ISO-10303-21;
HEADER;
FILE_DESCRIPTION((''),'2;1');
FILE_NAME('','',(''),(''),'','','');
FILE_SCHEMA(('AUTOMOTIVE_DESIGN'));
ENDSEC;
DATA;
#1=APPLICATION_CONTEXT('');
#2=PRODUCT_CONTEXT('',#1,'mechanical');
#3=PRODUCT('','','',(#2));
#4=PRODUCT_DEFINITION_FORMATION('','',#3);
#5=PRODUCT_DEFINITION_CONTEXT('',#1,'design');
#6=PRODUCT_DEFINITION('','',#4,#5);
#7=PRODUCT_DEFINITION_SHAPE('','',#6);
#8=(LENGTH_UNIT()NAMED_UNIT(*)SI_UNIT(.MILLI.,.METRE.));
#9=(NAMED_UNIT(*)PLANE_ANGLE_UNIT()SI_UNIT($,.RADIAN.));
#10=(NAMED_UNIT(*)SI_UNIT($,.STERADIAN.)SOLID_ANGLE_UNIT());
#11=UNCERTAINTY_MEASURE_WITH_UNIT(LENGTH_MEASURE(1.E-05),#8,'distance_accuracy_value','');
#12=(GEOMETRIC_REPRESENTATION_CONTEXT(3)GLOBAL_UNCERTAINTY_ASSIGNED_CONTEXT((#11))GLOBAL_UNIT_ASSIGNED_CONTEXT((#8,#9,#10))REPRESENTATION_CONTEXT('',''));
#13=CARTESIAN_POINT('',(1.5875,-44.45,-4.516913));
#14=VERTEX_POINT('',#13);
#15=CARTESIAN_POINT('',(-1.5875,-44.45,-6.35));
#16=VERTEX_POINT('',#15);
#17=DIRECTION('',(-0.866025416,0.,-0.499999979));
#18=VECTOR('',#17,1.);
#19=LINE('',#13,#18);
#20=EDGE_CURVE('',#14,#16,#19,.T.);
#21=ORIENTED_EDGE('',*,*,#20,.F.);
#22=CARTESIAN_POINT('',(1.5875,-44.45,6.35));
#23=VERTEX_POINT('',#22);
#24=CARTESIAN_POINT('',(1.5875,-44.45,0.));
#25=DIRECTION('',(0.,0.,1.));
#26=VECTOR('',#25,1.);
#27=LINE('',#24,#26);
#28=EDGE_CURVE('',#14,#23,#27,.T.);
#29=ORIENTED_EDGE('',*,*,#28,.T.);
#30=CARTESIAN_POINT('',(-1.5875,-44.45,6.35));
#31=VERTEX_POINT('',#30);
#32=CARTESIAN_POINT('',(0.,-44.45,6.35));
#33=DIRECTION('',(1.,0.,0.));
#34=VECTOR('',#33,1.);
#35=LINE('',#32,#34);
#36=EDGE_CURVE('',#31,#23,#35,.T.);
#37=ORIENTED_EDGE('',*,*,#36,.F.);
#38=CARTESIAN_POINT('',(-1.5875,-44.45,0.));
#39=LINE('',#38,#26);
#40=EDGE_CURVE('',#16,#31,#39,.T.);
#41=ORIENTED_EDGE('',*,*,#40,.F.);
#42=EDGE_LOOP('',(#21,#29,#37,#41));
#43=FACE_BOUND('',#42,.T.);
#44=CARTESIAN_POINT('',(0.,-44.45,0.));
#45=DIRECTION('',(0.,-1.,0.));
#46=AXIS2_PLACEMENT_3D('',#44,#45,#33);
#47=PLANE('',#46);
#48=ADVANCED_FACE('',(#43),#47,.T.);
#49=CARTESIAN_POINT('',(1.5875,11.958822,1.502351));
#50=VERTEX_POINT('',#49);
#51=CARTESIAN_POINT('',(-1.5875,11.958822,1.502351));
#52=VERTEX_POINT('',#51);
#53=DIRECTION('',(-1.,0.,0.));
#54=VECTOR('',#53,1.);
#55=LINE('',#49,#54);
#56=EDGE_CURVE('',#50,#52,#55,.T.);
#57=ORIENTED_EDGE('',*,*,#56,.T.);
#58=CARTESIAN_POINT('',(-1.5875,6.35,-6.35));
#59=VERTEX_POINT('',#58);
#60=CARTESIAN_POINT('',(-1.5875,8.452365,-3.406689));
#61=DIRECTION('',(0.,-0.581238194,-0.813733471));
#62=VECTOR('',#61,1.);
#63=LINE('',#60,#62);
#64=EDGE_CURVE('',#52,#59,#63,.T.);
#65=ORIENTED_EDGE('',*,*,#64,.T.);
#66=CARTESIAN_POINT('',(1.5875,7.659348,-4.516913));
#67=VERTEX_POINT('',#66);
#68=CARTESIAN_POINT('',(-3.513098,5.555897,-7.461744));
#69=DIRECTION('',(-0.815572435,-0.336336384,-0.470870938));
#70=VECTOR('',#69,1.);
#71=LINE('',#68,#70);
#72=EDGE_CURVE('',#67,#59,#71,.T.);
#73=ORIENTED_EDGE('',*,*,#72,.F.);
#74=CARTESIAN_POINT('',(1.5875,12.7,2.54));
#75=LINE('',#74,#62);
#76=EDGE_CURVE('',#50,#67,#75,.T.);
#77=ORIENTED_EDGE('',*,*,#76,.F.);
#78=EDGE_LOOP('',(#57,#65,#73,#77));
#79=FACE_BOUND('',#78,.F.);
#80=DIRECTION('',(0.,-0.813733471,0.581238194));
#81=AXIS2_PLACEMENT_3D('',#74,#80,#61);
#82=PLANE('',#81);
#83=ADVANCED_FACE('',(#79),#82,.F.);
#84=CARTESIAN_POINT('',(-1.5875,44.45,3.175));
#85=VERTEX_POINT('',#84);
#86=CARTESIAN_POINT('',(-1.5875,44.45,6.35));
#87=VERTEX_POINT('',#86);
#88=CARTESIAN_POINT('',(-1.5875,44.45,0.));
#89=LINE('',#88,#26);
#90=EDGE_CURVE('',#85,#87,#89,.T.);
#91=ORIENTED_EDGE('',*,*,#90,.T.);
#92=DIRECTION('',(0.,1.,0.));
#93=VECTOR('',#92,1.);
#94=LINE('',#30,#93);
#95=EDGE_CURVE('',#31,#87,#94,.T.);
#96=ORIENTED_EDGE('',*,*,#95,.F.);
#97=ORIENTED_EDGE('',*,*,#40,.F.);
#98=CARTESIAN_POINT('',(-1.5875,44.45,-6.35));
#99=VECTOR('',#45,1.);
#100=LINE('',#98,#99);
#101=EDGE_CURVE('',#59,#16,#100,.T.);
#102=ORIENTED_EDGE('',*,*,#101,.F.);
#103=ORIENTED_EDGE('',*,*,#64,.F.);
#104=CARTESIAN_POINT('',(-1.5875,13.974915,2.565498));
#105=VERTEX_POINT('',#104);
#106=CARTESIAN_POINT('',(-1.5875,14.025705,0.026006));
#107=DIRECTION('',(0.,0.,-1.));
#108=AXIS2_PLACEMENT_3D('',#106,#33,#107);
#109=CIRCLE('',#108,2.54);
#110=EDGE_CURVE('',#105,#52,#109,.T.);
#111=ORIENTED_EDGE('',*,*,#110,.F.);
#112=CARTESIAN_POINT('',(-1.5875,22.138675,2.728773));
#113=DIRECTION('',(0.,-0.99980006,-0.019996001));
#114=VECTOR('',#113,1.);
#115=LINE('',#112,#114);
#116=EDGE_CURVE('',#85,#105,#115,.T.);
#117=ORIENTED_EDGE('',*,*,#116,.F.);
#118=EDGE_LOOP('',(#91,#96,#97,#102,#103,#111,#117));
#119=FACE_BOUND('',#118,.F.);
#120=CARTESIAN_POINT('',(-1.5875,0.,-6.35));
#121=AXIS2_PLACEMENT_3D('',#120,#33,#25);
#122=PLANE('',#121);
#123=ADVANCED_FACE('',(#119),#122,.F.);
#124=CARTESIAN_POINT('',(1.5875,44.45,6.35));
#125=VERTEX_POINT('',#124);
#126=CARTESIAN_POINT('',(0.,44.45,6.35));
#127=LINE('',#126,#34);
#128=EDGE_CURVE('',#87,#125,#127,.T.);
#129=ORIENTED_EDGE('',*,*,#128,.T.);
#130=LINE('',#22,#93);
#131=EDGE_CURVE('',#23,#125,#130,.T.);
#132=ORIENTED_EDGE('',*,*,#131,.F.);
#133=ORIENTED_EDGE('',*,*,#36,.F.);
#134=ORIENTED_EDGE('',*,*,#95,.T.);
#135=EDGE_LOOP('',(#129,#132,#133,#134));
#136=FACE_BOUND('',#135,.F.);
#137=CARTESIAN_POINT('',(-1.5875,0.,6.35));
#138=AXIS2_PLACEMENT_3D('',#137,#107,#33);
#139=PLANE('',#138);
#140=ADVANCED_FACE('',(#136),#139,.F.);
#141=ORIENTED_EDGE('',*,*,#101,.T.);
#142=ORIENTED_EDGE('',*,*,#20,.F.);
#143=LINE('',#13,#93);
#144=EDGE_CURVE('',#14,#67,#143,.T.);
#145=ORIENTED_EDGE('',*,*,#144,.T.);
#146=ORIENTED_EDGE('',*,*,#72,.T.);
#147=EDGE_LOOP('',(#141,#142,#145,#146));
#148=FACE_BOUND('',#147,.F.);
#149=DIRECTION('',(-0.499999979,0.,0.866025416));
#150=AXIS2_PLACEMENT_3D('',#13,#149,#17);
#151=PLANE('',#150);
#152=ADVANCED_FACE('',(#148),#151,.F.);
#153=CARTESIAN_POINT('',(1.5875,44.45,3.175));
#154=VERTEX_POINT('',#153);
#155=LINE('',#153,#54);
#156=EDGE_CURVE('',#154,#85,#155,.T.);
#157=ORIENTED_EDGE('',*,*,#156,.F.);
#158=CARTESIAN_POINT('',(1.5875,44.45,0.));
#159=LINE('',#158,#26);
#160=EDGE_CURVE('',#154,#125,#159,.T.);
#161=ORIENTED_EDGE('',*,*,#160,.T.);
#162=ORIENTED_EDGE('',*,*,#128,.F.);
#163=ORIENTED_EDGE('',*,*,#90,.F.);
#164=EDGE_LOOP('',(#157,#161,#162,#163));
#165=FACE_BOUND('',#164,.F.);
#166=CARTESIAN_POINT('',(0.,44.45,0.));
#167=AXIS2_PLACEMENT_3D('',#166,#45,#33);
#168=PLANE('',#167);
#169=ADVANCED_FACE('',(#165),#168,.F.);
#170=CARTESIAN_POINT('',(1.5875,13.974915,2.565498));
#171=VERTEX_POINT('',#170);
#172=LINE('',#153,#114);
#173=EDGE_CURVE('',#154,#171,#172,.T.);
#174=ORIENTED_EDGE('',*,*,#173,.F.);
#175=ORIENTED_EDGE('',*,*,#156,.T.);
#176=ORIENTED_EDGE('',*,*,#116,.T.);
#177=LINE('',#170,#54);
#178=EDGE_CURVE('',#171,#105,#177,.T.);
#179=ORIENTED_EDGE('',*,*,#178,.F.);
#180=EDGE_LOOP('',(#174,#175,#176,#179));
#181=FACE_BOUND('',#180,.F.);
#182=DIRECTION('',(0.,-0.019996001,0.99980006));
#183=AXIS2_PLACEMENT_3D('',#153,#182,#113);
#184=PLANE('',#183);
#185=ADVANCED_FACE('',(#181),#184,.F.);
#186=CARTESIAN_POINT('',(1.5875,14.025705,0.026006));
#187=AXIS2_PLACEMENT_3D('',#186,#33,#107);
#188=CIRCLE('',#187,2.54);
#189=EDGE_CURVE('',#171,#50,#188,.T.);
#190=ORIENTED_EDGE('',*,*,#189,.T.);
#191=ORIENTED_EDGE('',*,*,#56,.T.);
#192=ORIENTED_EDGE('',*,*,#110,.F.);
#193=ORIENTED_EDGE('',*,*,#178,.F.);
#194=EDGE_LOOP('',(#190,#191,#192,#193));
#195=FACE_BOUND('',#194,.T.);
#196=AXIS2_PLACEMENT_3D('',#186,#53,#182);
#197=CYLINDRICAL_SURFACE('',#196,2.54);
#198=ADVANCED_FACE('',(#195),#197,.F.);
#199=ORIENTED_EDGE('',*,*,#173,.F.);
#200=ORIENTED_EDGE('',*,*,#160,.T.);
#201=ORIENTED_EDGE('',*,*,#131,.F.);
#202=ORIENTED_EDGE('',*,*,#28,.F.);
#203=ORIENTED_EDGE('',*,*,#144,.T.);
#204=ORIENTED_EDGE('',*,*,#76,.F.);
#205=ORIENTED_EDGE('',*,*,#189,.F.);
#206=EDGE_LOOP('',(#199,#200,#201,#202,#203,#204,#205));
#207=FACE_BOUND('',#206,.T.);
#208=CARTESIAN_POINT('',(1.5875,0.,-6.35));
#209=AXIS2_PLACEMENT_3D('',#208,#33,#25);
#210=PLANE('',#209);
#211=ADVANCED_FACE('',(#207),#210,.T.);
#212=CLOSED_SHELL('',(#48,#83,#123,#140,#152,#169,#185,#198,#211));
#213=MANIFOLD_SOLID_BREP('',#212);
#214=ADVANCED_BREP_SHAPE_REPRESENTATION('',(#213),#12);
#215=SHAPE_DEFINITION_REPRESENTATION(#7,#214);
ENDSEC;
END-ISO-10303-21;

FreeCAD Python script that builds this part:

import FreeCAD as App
import Part
import Sketcher

V = App.Vector
Q = App.Units.Quantity


def edges_at(feature, points):
    """Names of the edges that pass closest to the given points."""
    edges = feature.Shape.Edges
    near = lambda p: min(range(len(edges)), key=lambda i: edges[i].distToShape(Part.Vertex(*p))[0])
    return sorted({f"Edge{near(p) + 1}" for p in points})

doc = App.newDocument("Part")
body = doc.addObject("PartDesign::Body", "Body")

# Sketch on XZ plane
sketch1 = doc.addObject("Sketcher::SketchObject", "Sketch")
body.addObject(sketch1)
sketch1.AttachmentSupport = (doc.XZ_Plane, [""])
sketch1.MapMode = "FlatFace"
sketch1.addGeometry(Part.LineSegment(V(-1.6, 6.3, 0), V(-1.6, -6.3, 0)), False)
sketch1.addGeometry(Part.LineSegment(V(-1.6, -6.3, 0), V(1.6, -6.3, 0)), False)
sketch1.addGeometry(Part.LineSegment(V(1.6, -6.3, 0), V(1.6, 6.3, 0)), False)
sketch1.addGeometry(Part.LineSegment(V(1.6, 6.3, 0), V(-1.6, 6.3, 0)), False)
sketch1.addConstraint(Sketcher.Constraint("Coincident", 0, 2, 1, 1))
sketch1.addConstraint(Sketcher.Constraint("Coincident", 1, 2, 2, 1))
sketch1.addConstraint(Sketcher.Constraint("Coincident", 2, 2, 3, 1))
sketch1.addConstraint(Sketcher.Constraint("Coincident", 3, 2, 0, 1))
sketch1.addConstraint(Sketcher.Constraint("Vertical", 0))
sketch1.addConstraint(Sketcher.Constraint("Horizontal", 1))
sketch1.addConstraint(Sketcher.Constraint("Vertical", 2))
sketch1.addConstraint(Sketcher.Constraint("Horizontal", 3))
sketch1.addConstraint(Sketcher.Constraint("Symmetric", 0, 2, 2, 2, -1, 1))
sketch1.addConstraint(Sketcher.Constraint("DistanceY", 0, 2, 0, 1, Q("0.5 in")))
sketch1.addConstraint(Sketcher.Constraint("DistanceX", 1, 1, 1, 2, Q("0.125 in")))
pad1 = doc.addObject("PartDesign::Pad", "Pad")
body.addObject(pad1)
pad1.Profile = sketch1
pad1.Length = Q("3.5 in")
pad1.Midplane = True

# Sketch on YZ plane
sketch2 = doc.addObject("Sketcher::SketchObject", "Sketch001")
body.addObject(sketch2)
sketch2.AttachmentSupport = (doc.YZ_Plane, [""])
sketch2.MapMode = "FlatFace"
sketch2.AttachmentOffset = App.Placement(V(0, 0, 0.0625 * 25.4), App.Rotation())
sketch2.addGeometry(Part.LineSegment(V(44, -6, 0), V(44, 3, 0)), False)
sketch2.addGeometry(Part.LineSegment(V(44, 3, 0), V(13, 3, 0)), False)
sketch2.addGeometry(Part.LineSegment(V(13, 3, 0), V(6, -6, 0)), False)
sketch2.addGeometry(Part.LineSegment(V(6, -6, 0), V(44, -6, 0)), False)
sketch2.addConstraint(Sketcher.Constraint("Coincident", 0, 2, 1, 1))
sketch2.addConstraint(Sketcher.Constraint("Coincident", 1, 2, 2, 1))
sketch2.addConstraint(Sketcher.Constraint("Coincident", 2, 2, 3, 1))
sketch2.addConstraint(Sketcher.Constraint("Coincident", 3, 2, 0, 1))
sketch2.addConstraint(Sketcher.Constraint("Vertical", 0))
sketch2.addConstraint(Sketcher.Constraint("Horizontal", 3))
sketch2.addConstraint(Sketcher.Constraint("DistanceX", 3, 1, 3, 2, Q("1.5 in")))
sketch2.addConstraint(Sketcher.Constraint("DistanceX", -1, 1, 1, 2, Q("0.5 in")))
sketch2.addConstraint(Sketcher.Constraint("DistanceY", -1, 1, 1, 2, Q("0.1 in")))
sketch2.addConstraint(Sketcher.Constraint("DistanceY", 0, 1, 0, 2, Q("0.375 in")))
sketch2.addConstraint(Sketcher.Constraint("DistanceX", -1, 1, 0, 2, Q("1.75 in")))
sketch2.addConstraint(Sketcher.Constraint("DistanceY", 2, 2, -1, 1, Q("0.25 in")))
pocket1 = doc.addObject("PartDesign::Pocket", "Pocket")
body.addObject(pocket1)
pocket1.Profile = sketch2
pocket1.Type = "ThroughAll"

# Sketch on XZ plane
sketch3 = doc.addObject("Sketcher::SketchObject", "Sketch002")
body.addObject(sketch3)
sketch3.AttachmentSupport = (doc.XZ_Plane, [""])
sketch3.MapMode = "FlatFace"
sketch3.AttachmentOffset = App.Placement(V(0, 0, 1.75 * 25.4), App.Rotation())
sketch3.addGeometry(Part.LineSegment(V(1.6, -4.5, 0), V(-1.6, -6.3, 0)), False)
sketch3.addGeometry(Part.LineSegment(V(-1.6, -6.3, 0), V(1.6, -6.3, 0)), False)
sketch3.addGeometry(Part.LineSegment(V(1.6, -6.3, 0), V(1.6, -4.5, 0)), False)
sketch3.addConstraint(Sketcher.Constraint("Coincident", 0, 2, 1, 1))
sketch3.addConstraint(Sketcher.Constraint("Coincident", 1, 2, 2, 1))
sketch3.addConstraint(Sketcher.Constraint("Coincident", 2, 2, 0, 1))
sketch3.addConstraint(Sketcher.Constraint("Horizontal", 1))
sketch3.addConstraint(Sketcher.Constraint("Vertical", 2))
sketch3.addConstraint(Sketcher.Constraint("Angle", 0, Q("-150.000001 deg")))
sketch3.addConstraint(Sketcher.Constraint("DistanceX", 1, 1, 1, 2, Q("0.125 in")))
sketch3.addConstraint(Sketcher.Constraint("DistanceY", 0, 2, -1, 1, Q("0.25 in")))
sketch3.addConstraint(Sketcher.Constraint("DistanceX", 0, 2, -1, 1, Q("0.0625 in")))
pocket2 = doc.addObject("PartDesign::Pocket", "Pocket001")
body.addObject(pocket2)
pocket2.Profile = sketch3
pocket2.Length = Q("3.25 in")
doc.recompute()

fillet = doc.addObject("PartDesign::Fillet", "Fillet")
body.addObject(fillet)
fillet.Base = (pocket2, edges_at(pocket2, [(0, 12.7, 2.54)]))
fillet.Radius = Q("0.1 in")

doc.recompute()
